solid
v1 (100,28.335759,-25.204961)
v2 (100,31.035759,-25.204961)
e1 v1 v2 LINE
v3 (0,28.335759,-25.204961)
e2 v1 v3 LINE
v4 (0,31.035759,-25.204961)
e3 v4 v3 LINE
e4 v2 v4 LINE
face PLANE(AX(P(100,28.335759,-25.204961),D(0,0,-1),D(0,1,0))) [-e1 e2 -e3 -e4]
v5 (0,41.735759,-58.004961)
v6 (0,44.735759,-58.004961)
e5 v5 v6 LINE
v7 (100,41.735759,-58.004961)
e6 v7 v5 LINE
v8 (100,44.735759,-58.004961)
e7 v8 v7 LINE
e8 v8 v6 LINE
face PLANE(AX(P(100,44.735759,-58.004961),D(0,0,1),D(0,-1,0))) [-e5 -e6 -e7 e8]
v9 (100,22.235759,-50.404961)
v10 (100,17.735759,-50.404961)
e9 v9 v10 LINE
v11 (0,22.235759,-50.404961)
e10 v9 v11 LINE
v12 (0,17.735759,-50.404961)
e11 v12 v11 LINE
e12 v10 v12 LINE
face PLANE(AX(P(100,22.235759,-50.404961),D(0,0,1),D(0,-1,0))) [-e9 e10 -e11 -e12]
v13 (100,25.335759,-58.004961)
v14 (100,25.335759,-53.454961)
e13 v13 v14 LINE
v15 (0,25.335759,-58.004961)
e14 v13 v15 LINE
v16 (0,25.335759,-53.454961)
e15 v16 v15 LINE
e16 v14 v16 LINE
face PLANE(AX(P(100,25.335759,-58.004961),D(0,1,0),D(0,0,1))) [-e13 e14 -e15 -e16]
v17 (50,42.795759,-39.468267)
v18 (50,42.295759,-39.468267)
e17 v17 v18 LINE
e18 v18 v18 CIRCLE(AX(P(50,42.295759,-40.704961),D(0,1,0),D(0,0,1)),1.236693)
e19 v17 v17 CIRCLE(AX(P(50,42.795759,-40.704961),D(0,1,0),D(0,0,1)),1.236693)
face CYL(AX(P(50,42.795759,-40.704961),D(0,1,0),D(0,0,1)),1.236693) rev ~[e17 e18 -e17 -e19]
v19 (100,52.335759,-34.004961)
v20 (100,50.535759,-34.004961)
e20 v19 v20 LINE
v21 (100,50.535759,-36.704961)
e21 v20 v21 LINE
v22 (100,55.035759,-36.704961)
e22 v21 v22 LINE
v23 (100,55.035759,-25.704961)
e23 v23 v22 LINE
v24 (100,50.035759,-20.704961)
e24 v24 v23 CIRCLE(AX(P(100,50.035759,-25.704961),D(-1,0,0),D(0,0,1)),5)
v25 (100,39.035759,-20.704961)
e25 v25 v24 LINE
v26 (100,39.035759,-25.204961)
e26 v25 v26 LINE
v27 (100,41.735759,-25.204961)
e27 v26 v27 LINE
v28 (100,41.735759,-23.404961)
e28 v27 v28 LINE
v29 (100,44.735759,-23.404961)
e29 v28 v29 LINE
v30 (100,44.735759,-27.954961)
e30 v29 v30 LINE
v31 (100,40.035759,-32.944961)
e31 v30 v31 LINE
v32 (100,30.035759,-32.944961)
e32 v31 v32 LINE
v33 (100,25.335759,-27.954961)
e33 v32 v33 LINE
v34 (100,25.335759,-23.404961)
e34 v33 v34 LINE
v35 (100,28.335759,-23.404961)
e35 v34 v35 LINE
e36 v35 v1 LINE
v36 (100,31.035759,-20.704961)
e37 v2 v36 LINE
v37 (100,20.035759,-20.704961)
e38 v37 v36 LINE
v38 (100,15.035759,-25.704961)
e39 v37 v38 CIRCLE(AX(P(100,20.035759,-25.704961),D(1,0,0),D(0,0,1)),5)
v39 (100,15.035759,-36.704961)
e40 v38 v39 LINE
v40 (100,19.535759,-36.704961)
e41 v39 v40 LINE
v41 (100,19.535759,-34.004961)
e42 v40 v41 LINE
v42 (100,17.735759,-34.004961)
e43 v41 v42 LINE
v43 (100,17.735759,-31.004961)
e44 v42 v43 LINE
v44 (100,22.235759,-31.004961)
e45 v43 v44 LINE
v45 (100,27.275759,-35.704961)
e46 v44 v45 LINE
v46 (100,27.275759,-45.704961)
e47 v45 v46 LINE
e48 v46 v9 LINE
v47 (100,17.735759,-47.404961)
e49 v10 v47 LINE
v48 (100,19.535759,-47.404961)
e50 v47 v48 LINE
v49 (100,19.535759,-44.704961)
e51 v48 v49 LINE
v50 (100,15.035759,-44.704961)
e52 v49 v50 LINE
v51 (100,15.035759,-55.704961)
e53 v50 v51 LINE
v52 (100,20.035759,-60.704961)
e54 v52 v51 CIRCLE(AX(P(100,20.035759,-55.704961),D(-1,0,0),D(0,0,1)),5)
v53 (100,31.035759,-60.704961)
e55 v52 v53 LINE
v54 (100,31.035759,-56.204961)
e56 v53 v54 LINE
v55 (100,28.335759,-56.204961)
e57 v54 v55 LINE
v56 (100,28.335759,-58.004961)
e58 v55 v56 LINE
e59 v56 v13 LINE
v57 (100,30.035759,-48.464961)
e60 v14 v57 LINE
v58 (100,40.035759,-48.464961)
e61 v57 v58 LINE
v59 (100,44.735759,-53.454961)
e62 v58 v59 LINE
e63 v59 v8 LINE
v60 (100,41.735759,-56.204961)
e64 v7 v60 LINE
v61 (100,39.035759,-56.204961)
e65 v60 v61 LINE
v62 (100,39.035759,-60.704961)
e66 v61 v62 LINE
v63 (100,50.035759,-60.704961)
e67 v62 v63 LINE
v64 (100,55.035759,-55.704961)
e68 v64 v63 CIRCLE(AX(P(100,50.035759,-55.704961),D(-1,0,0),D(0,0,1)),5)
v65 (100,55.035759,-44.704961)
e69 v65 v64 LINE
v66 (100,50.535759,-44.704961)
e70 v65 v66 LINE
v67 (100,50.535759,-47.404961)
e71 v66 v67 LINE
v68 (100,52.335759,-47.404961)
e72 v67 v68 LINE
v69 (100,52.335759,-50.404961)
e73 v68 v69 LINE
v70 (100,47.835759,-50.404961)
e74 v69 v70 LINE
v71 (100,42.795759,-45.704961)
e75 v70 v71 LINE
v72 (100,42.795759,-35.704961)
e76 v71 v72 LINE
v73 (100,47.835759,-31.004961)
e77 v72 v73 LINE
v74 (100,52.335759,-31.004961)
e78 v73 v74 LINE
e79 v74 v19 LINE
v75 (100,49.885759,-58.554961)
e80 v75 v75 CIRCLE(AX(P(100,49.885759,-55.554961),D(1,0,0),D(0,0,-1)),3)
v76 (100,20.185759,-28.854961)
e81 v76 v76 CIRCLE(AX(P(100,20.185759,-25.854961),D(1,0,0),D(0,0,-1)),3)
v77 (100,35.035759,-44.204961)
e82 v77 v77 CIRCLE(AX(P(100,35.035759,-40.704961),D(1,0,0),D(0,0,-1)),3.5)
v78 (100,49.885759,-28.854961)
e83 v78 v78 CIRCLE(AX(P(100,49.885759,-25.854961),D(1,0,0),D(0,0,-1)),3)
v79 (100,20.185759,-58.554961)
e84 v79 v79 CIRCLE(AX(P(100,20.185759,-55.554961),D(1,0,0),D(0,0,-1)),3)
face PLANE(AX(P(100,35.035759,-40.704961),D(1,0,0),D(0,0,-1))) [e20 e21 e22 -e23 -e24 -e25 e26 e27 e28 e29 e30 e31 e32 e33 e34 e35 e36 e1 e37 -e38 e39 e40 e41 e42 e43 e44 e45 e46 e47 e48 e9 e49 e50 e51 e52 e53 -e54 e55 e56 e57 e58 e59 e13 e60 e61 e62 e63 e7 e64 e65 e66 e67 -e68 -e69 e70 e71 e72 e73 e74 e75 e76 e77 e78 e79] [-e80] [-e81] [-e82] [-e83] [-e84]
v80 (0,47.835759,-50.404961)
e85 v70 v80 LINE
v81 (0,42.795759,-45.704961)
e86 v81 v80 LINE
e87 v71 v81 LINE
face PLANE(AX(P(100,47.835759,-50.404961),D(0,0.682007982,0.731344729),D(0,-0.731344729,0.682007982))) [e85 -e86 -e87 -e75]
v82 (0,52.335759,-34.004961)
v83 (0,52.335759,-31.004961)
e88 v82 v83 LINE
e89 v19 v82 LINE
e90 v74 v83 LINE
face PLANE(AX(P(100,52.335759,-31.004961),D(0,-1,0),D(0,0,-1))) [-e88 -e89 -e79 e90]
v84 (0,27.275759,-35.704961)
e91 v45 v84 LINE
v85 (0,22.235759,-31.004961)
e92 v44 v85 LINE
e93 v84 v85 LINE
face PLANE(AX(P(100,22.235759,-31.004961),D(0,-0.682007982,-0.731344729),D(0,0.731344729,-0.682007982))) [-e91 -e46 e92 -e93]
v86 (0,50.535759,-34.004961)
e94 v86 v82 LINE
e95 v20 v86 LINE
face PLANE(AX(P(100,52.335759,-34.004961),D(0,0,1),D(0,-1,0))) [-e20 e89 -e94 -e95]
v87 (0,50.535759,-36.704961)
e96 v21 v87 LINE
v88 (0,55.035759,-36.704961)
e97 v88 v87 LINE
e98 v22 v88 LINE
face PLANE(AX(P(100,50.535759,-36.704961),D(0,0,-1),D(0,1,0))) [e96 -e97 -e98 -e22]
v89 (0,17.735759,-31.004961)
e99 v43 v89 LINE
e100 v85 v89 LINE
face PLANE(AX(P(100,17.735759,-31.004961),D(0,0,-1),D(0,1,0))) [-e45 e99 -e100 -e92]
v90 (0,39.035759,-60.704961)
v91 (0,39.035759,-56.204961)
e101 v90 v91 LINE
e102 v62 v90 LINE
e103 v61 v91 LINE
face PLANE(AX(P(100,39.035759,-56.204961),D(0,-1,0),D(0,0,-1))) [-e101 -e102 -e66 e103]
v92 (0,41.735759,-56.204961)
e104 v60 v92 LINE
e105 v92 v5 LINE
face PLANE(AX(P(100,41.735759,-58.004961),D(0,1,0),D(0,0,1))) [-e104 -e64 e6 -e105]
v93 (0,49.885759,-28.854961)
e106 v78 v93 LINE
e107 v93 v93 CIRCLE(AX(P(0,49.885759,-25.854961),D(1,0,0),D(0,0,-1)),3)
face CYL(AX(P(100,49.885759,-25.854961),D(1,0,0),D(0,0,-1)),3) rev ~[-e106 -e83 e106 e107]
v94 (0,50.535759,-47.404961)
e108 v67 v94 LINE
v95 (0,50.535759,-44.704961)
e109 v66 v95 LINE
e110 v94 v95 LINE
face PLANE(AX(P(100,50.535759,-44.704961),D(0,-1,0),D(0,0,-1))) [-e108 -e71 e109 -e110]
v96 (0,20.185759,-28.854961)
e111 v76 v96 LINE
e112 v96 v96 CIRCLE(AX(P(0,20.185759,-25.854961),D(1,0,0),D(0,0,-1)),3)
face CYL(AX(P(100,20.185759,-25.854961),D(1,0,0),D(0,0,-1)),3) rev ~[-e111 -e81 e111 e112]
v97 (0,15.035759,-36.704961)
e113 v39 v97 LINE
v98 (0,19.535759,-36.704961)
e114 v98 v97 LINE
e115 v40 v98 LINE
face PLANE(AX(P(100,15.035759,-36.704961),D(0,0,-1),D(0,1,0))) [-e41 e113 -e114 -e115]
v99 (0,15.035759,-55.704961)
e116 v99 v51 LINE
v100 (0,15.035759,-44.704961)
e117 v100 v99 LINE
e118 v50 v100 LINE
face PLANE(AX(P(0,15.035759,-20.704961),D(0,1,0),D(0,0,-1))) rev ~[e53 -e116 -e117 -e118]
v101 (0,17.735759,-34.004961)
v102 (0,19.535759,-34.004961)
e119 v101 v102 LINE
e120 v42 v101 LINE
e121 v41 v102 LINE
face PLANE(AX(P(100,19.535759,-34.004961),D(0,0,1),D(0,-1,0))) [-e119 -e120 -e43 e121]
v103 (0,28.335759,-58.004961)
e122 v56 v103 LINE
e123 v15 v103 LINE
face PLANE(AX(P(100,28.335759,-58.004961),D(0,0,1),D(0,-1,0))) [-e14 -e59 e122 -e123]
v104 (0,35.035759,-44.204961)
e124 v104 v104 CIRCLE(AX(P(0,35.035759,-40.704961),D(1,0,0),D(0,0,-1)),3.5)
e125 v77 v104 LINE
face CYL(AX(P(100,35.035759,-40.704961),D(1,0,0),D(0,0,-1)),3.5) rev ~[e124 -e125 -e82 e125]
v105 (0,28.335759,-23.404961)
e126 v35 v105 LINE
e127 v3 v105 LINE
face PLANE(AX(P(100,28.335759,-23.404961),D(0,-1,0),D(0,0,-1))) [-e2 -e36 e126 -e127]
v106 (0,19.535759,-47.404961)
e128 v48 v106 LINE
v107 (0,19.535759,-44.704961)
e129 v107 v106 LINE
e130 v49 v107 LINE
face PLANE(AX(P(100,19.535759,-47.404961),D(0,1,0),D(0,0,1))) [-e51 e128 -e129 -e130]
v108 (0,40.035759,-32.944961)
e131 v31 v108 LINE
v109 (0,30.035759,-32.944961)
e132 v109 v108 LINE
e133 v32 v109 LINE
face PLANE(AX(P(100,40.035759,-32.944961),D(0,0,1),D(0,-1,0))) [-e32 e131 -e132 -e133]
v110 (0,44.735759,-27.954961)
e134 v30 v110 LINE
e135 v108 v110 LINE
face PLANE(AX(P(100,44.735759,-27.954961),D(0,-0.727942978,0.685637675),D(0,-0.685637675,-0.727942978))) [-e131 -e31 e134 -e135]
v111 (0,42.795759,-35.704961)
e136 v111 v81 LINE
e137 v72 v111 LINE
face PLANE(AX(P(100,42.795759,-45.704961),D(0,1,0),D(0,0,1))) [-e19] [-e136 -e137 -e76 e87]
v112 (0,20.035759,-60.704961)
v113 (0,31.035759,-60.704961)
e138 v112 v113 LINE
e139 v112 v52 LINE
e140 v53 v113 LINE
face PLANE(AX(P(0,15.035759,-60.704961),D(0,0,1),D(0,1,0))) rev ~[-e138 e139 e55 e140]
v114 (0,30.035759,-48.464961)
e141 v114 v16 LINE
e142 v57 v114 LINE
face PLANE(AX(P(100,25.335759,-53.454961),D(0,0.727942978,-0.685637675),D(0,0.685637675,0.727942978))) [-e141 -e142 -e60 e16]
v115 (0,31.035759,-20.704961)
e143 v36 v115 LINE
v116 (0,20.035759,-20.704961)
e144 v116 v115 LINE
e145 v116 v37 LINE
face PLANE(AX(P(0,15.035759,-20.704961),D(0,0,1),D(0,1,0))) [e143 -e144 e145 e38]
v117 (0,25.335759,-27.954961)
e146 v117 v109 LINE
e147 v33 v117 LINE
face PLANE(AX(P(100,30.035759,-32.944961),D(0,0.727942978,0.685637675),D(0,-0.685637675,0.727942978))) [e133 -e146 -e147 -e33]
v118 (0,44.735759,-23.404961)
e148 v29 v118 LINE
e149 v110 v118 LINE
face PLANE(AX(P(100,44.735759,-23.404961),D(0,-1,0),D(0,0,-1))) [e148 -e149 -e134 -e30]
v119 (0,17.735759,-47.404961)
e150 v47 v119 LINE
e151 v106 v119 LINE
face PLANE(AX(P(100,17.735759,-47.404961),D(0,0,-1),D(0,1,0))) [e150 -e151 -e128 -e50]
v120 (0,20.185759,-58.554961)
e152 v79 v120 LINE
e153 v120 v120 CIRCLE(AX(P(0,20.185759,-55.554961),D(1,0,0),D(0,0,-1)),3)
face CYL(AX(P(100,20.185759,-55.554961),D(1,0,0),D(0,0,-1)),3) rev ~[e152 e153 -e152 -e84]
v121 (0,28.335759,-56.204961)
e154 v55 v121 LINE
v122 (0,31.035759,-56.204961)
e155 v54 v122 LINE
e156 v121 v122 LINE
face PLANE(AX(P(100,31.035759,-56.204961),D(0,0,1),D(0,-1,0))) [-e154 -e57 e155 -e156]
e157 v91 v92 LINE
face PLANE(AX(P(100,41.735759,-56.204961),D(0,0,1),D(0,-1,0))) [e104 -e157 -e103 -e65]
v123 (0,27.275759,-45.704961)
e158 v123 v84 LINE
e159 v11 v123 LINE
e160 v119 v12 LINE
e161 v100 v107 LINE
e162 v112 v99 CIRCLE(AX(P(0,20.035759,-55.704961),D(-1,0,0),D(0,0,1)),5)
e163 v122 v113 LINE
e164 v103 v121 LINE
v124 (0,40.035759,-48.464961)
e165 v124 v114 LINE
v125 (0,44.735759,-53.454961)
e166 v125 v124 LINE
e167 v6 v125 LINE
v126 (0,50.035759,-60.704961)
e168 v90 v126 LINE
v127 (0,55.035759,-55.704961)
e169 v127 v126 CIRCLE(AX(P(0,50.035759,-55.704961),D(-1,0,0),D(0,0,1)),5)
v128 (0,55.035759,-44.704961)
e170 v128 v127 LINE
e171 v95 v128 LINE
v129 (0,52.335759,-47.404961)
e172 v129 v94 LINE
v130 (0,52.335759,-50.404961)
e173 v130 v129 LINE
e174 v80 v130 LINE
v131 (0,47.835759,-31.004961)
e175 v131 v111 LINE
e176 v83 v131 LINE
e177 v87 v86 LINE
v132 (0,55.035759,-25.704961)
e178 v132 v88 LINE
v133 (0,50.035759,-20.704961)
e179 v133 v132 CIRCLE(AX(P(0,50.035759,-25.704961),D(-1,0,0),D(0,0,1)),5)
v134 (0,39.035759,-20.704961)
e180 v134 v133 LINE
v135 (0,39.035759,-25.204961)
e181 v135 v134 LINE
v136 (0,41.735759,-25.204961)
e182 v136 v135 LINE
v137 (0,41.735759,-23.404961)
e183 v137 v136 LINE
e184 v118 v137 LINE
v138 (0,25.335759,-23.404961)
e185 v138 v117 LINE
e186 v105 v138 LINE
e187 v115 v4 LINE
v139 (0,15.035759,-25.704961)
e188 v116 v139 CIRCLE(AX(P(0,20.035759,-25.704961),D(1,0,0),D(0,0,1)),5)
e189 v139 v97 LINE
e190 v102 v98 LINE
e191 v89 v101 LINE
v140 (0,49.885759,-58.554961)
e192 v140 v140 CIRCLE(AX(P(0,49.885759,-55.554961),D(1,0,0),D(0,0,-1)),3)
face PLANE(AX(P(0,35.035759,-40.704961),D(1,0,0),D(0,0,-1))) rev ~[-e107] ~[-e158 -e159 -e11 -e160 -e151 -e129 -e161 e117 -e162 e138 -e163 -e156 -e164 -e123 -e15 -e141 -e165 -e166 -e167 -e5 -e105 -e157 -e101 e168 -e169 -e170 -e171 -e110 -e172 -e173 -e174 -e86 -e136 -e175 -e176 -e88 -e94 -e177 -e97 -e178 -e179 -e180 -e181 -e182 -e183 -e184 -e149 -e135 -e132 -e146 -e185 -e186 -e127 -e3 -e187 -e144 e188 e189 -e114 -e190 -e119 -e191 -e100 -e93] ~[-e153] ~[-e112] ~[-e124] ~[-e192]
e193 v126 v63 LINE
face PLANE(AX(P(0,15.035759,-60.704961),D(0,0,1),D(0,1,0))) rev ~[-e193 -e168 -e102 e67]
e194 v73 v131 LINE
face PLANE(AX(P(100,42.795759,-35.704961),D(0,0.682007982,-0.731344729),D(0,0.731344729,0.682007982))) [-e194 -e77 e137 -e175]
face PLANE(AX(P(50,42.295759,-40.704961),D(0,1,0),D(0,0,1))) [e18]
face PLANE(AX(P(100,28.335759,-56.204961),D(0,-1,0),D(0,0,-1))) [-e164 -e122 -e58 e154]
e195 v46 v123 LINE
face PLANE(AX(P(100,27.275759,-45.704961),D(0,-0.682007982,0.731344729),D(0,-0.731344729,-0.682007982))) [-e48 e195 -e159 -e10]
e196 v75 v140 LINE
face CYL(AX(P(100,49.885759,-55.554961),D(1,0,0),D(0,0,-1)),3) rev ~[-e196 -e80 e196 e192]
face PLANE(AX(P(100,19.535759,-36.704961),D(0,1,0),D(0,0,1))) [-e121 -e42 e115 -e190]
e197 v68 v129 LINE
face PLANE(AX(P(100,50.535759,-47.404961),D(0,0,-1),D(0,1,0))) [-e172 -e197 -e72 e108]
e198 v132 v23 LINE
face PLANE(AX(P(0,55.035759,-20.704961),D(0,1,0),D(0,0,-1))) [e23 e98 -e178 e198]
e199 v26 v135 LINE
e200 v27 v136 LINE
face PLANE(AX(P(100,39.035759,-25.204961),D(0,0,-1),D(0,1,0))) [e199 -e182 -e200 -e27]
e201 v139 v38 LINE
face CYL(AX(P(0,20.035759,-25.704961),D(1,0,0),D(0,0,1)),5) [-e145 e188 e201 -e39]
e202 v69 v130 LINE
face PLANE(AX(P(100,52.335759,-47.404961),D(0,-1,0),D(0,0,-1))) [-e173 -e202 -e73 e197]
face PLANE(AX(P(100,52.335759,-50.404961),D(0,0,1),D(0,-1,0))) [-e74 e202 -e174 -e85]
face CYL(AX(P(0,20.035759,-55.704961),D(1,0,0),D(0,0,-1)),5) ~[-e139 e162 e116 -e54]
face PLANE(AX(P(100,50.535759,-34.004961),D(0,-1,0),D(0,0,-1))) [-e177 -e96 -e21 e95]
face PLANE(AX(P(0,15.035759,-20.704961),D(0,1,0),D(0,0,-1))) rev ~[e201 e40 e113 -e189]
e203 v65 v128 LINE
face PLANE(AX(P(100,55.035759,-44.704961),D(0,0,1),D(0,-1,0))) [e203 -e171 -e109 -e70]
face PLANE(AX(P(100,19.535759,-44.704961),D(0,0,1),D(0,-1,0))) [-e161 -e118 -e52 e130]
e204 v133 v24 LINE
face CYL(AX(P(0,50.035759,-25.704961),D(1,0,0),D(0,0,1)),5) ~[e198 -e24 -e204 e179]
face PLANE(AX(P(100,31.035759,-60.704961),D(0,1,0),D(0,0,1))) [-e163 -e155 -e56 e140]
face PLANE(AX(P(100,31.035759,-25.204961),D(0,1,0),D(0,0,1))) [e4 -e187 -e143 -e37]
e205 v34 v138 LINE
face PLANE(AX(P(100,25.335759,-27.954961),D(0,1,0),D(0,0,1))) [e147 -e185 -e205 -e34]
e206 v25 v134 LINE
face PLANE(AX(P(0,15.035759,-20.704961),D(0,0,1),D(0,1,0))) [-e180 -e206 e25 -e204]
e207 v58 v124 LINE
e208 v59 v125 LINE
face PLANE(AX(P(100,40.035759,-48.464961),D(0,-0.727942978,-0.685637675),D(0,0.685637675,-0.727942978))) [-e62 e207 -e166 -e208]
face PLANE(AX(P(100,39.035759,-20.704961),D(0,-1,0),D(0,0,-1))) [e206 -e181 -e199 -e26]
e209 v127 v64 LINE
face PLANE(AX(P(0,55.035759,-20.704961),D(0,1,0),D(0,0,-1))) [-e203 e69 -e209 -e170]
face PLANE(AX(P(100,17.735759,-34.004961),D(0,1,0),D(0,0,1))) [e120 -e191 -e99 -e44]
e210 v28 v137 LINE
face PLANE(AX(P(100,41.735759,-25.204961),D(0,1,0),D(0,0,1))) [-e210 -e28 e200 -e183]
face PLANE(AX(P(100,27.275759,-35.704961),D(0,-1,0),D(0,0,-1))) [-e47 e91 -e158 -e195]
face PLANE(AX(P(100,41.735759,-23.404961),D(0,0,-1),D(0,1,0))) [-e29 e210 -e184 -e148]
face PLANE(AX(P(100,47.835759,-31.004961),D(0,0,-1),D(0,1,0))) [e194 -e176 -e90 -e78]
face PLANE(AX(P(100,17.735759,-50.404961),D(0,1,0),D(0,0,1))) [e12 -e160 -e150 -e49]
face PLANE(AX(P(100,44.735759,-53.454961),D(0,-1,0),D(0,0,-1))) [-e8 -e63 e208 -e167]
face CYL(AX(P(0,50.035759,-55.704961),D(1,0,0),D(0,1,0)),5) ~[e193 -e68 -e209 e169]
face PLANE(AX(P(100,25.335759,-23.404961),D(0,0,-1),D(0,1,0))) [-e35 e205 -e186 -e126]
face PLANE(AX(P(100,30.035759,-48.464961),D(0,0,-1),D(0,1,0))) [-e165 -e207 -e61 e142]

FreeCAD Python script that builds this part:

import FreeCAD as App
import Part
import Sketcher

V = App.Vector
Q = App.Units.Quantity


def edges_at(feature, points):
    """Names of the edges that pass closest to the given points."""
    edges = feature.Shape.Edges
    near = lambda p: min(range(len(edges)), key=lambda i: edges[i].distToShape(Part.Vertex(*p))[0])
    return sorted({f"Edge{near(p) + 1}" for p in points})

doc = App.newDocument("Part")
params = doc.addObject("Spreadsheet::Sheet", "Params")
for row, (alias, value) in enumerate([
    ("sketch1_width", "40 mm"),
    ("pad1_length", "100 mm"),
    ("sketch2_diameter", "7 mm"),
    ("sketch3_diameter", "6 mm"),
    ("sketch4_diameter", "6 mm"),
    ("sketch5_diameter", "6 mm"),
    ("sketch6_diameter", "6 mm"),
    ("sketch7_height", "8 mm"),
    ("sketch7_height2", "3 mm"),
    ("sketch7_height3", "10 mm"),
    ("sketch7_width", "4.5 mm"),
    ("sketch7_width2", "1.8 mm"),
    ("sketch8_height", "8 mm"),
    ("sketch8_height2", "3 mm"),
    ("sketch8_height3", "10 mm"),
    ("sketch8_width", "4.5 mm"),
    ("sketch8_width2", "1.8 mm"),
    ("sketch9_width", "8 mm"),
    ("sketch9_width2", "3 mm"),
    ("sketch9_width3", "10 mm"),
    ("sketch9_width4", "2.7 mm"),
    ("sketch9_height", "4.5 mm"),
    ("sketch10_width", "8 mm"),
    ("sketch10_width2", "3 mm"),
    ("sketch10_width3", "10 mm"),
    ("sketch10_width4", "2.7 mm"),
    ("sketch10_height", "4.5 mm"),
    ("fillet_radius", "5 mm"),
    ("pocket10_length", "0.5 mm"),
], start=1):
    params.set(f"A{row}", alias)
    params.set(f"B{row}", "=" + value)
    params.setAlias(f"B{row}", alias)

body = doc.addObject("PartDesign::Body", "Body")

sketch1 = doc.addObject("Sketcher::SketchObject", "Sketch")
body.addObject(sketch1)
sketch1.AttachmentSupport = (doc.YZ_Plane, [""])
sketch1.MapMode = "FlatFace"
sketch1.addGeometry(Part.LineSegment(V(55.035759, -20.704961, 0), V(15.035759, -20.704961, 0)), False)
sketch1.addGeometry(Part.LineSegment(V(15.035759, -20.704961, 0), V(15.035759, -60.704961, 0)), False)
sketch1.addGeometry(Part.LineSegment(V(15.035759, -60.704961, 0), V(55.035759, -60.704961, 0)), False)
sketch1.addGeometry(Part.LineSegment(V(55.035759, -60.704961, 0), V(55.035759, -20.704961, 0)), False)
sketch1.addConstraint(Sketcher.Constraint("Coincident", 0, 2, 1, 1))
sketch1.addConstraint(Sketcher.Constraint("Coincident", 1, 2, 2, 1))
sketch1.addConstraint(Sketcher.Constraint("Coincident", 2, 2, 3, 1))
sketch1.addConstraint(Sketcher.Constraint("Coincident", 3, 2, 0, 1))
sketch1.addConstraint(Sketcher.Constraint("Horizontal", 0))
sketch1.addConstraint(Sketcher.Constraint("Vertical", 1))
sketch1.addConstraint(Sketcher.Constraint("Horizontal", 2))
sketch1.addConstraint(Sketcher.Constraint("Vertical", 3))
sketch1.addConstraint(Sketcher.Constraint("Equal", 2, 1))
sketch1.addConstraint(Sketcher.Constraint("DistanceX", 0, 2, 0, 1, Q("40 mm")))
sketch1.addConstraint(Sketcher.Constraint("DistanceX", -1, 1, 0, 2, Q("15.035759 mm")))
sketch1.addConstraint(Sketcher.Constraint("DistanceY", 0, 2, -1, 1, Q("20.704961 mm")))
sketch1.setExpression("Constraints[9]", "Params.sketch1_width")
pad1 = doc.addObject("PartDesign::Pad", "Pad")
body.addObject(pad1)
pad1.Profile = sketch1
pad1.setExpression("Length", "Params.pad1_length")

sketch2 = doc.addObject("Sketcher::SketchObject", "Sketch001")
body.addObject(sketch2)
sketch2.AttachmentSupport = (doc.YZ_Plane, [""])
sketch2.MapMode = "FlatFace"
sketch2.AttachmentOffset = App.Placement(V(0, 0, 100), App.Rotation())
sketch2.addGeometry(Part.Circle(V(35.035759, -40.704961, 0), V(0, 0, 1), 3.5), False)
sketch2.addConstraint(Sketcher.Constraint("Diameter", 0, Q("7 mm")))
sketch2.addConstraint(Sketcher.Constraint("DistanceX", -1, 1, 0, 3, Q("35.035759 mm")))
sketch2.addConstraint(Sketcher.Constraint("DistanceY", 0, 3, -1, 1, Q("40.704961 mm")))
sketch2.setExpression("Constraints[0]", "Params.sketch2_diameter")
pocket1 = doc.addObject("PartDesign::Pocket", "Pocket")
body.addObject(pocket1)
pocket1.Profile = sketch2
pocket1.Type = "UpToFirst"

sketch3 = doc.addObject("Sketcher::SketchObject", "Sketch002")
body.addObject(sketch3)
sketch3.AttachmentSupport = (doc.YZ_Plane, [""])
sketch3.MapMode = "FlatFace"
sketch3.AttachmentOffset = App.Placement(V(0, 0, 100), App.Rotation())
sketch3.addGeometry(Part.Circle(V(49.885759, -25.854961, 0), V(0, 0, 1), 3), False)
sketch3.addConstraint(Sketcher.Constraint("Diameter", 0, Q("6 mm")))
sketch3.addConstraint(Sketcher.Constraint("DistanceX", -1, 1, 0, 3, Q("49.885759 mm")))
sketch3.addConstraint(Sketcher.Constraint("DistanceY", 0, 3, -1, 1, Q("25.854961 mm")))
sketch3.setExpression("Constraints[0]", "Params.sketch3_diameter")
pocket2 = doc.addObject("PartDesign::Pocket", "Pocket001")
body.addObject(pocket2)
pocket2.Profile = sketch3
pocket2.Type = "UpToFirst"

sketch4 = doc.addObject("Sketcher::SketchObject", "Sketch003")
body.addObject(sketch4)
sketch4.AttachmentSupport = (doc.YZ_Plane, [""])
sketch4.MapMode = "FlatFace"
sketch4.AttachmentOffset = App.Placement(V(0, 0, 100), App.Rotation())
sketch4.addGeometry(Part.Circle(V(20.185759, -25.854961, 0), V(0, 0, 1), 3), False)
sketch4.addConstraint(Sketcher.Constraint("Diameter", 0, Q("6 mm")))
sketch4.addConstraint(Sketcher.Constraint("DistanceX", -1, 1, 0, 3, Q("20.185759 mm")))
sketch4.addConstraint(Sketcher.Constraint("DistanceY", 0, 3, -1, 1, Q("25.854961 mm")))
sketch4.setExpression("Constraints[0]", "Params.sketch4_diameter")
pocket3 = doc.addObject("PartDesign::Pocket", "Pocket002")
body.addObject(pocket3)
pocket3.Profile = sketch4
pocket3.Type = "UpToFirst"

sketch5 = doc.addObject("Sketcher::SketchObject", "Sketch004")
body.addObject(sketch5)
sketch5.AttachmentSupport = (doc.YZ_Plane, [""])
sketch5.MapMode = "FlatFace"
sketch5.AttachmentOffset = App.Placement(V(0, 0, 100), App.Rotation())
sketch5.addGeometry(Part.Circle(V(49.885759, -55.554961, 0), V(0, 0, 1), 3), False)
sketch5.addConstraint(Sketcher.Constraint("Diameter", 0, Q("6 mm")))
sketch5.addConstraint(Sketcher.Constraint("DistanceX", -1, 1, 0, 3, Q("49.885759 mm")))
sketch5.addConstraint(Sketcher.Constraint("DistanceY", 0, 3, -1, 1, Q("55.554961 mm")))
sketch5.setExpression("Constraints[0]", "Params.sketch5_diameter")
pocket4 = doc.addObject("PartDesign::Pocket", "Pocket003")
body.addObject(pocket4)
pocket4.Profile = sketch5
pocket4.Type = "UpToFirst"

sketch6 = doc.addObject("Sketcher::SketchObject", "Sketch005")
body.addObject(sketch6)
sketch6.AttachmentSupport = (doc.YZ_Plane, [""])
sketch6.MapMode = "FlatFace"
sketch6.AttachmentOffset = App.Placement(V(0, 0, 100), App.Rotation())
sketch6.addGeometry(Part.Circle(V(20.185759, -55.554961, 0), V(0, 0, 1), 3), False)
sketch6.addConstraint(Sketcher.Constraint("Diameter", 0, Q("6 mm")))
sketch6.addConstraint(Sketcher.Constraint("DistanceX", -1, 1, 0, 3, Q("20.185759 mm")))
sketch6.addConstraint(Sketcher.Constraint("DistanceY", 0, 3, -1, 1, Q("55.554961 mm")))
sketch6.setExpression("Constraints[0]", "Params.sketch6_diameter")
pocket5 = doc.addObject("PartDesign::Pocket", "Pocket004")
body.addObject(pocket5)
pocket5.Profile = sketch6
pocket5.Type = "UpToFirst"

sketch7 = doc.addObject("Sketcher::SketchObject", "Sketch006")
body.addObject(sketch7)
sketch7.AttachmentSupport = (doc.YZ_Plane, [""])
sketch7.MapMode = "FlatFace"
sketch7.AttachmentOffset = App.Placement(V(0, 0, 100), App.Rotation())
sketch7.addGeometry(Part.LineSegment(V(19.535759, -36.704961, 0), V(15.035759, -36.704961, 0)), False)
sketch7.addGeometry(Part.LineSegment(V(15.035759, -36.704961, 0), V(15.035759, -44.704961, 0)), False)
sketch7.addGeometry(Part.LineSegment(V(15.035759, -44.704961, 0), V(19.535759, -44.704961, 0)), False)
sketch7.addGeometry(Part.LineSegment(V(19.535759, -44.704961, 0), V(19.535759, -47.404961, 0)), False)
sketch7.addGeometry(Part.LineSegment(V(19.535759, -47.404961, 0), V(17.735759, -47.404961, 0)), False)
sketch7.addGeometry(Part.LineSegment(V(17.735759, -47.404961, 0), V(17.735759, -50.404961, 0)), False)
sketch7.addGeometry(Part.LineSegment(V(17.735759, -50.404961, 0), V(22.235759, -50.404961, 0)), False)
sketch7.addGeometry(Part.LineSegment(V(22.235759, -50.404961, 0), V(27.275759, -45.704961, 0)), False)
sketch7.addGeometry(Part.LineSegment(V(27.275759, -45.704961, 0), V(27.275759, -35.704961, 0)), False)
sketch7.addGeometry(Part.LineSegment(V(27.275759, -35.704961, 0), V(22.235759, -31.004961, 0)), False)
sketch7.addGeometry(Part.LineSegment(V(22.235759, -31.004961, 0), V(17.735759, -31.004961, 0)), False)
sketch7.addGeometry(Part.LineSegment(V(17.735759, -31.004961, 0), V(17.735759, -34.004961, 0)), False)
sketch7.addGeometry(Part.LineSegment(V(17.735759, -34.004961, 0), V(19.535759, -34.004961, 0)), False)
sketch7.addGeometry(Part.LineSegment(V(19.535759, -34.004961, 0), V(19.535759, -36.704961, 0)), False)
sketch7.addConstraint(Sketcher.Constraint("Coincident", 0, 2, 1, 1))
sketch7.addConstraint(Sketcher.Constraint("Coincident", 1, 2, 2, 1))
sketch7.addConstraint(Sketcher.Constraint("Coincident", 2, 2, 3, 1))
sketch7.addConstraint(Sketcher.Constraint("Coincident", 3, 2, 4, 1))
sketch7.addConstraint(Sketcher.Constraint("Coincident", 4, 2, 5, 1))
sketch7.addConstraint(Sketcher.Constraint("Coincident", 5, 2, 6, 1))
sketch7.addConstraint(Sketcher.Constraint("Coincident", 6, 2, 7, 1))
sketch7.addConstraint(Sketcher.Constraint("Coincident", 7, 2, 8, 1))
sketch7.addConstraint(Sketcher.Constraint("Coincident", 8, 2, 9, 1))
sketch7.addConstraint(Sketcher.Constraint("Coincident", 9, 2, 10, 1))
sketch7.addConstraint(Sketcher.Constraint("Coincident", 10, 2, 11, 1))
sketch7.addConstraint(Sketcher.Constraint("Coincident", 11, 2, 12, 1))
sketch7.addConstraint(Sketcher.Constraint("Coincident", 12, 2, 13, 1))
sketch7.addConstraint(Sketcher.Constraint("Coincident", 13, 2, 0, 1))
sketch7.addConstraint(Sketcher.Constraint("Horizontal", 0))
sketch7.addConstraint(Sketcher.Constraint("Vertical", 1))
sketch7.addConstraint(Sketcher.Constraint("Horizontal", 2))
sketch7.addConstraint(Sketcher.Constraint("Vertical", 3))
sketch7.addConstraint(Sketcher.Constraint("Horizontal", 4))
sketch7.addConstraint(Sketcher.Constraint("Vertical", 5))
sketch7.addConstraint(Sketcher.Constraint("Horizontal", 6))
sketch7.addConstraint(Sketcher.Constraint("Vertical", 8))
sketch7.addConstraint(Sketcher.Constraint("Horizontal", 10))
sketch7.addConstraint(Sketcher.Constraint("Vertical", 11))
sketch7.addConstraint(Sketcher.Constraint("Horizontal", 12))
sketch7.addConstraint(Sketcher.Constraint("Vertical", 13))
sketch7.addConstraint(Sketcher.Constraint("Vertical", 6, 2, 9, 2))
sketch7.addConstraint(Sketcher.Constraint("Vertical", 5, 2, 10, 2))
sketch7.addConstraint(Sketcher.Constraint("Vertical", 3, 2, 12, 2))
sketch7.addConstraint(Sketcher.Constraint("Equal", 2, 6))
sketch7.addConstraint(Sketcher.Constraint("Equal", 5, 11))
sketch7.addConstraint(Sketcher.Constraint("Equal", 3, 13))
sketch7.addConstraint(Sketcher.Constraint("Equal", 7, 9))
sketch7.addConstraint(Sketcher.Constraint("DistanceY", 1, 2, 1, 1, Q("8 mm")))
sketch7.addConstraint(Sketcher.Constraint("DistanceY", 5, 2, 5, 1, Q("3 mm")))
sketch7.addConstraint(Sketcher.Constraint("DistanceY", 8, 1, 8, 2, Q("10 mm")))
sketch7.addConstraint(Sketcher.Constraint("DistanceX", 0, 2, 0, 1, Q("4.5 mm")))
sketch7.addConstraint(Sketcher.Constraint("DistanceX", 4, 2, 4, 1, Q("1.8 mm")))
sketch7.addConstraint(Sketcher.Constraint("DistanceY", 3, 2, 3, 1, Q("2.7 mm")))
sketch7.addConstraint(Sketcher.Constraint("DistanceX", 6, 2, 7, 2, Q("5.04 mm")))
sketch7.addConstraint(Sketcher.Constraint("DistanceX", -1, 1, 0, 2, Q("15.035759 mm")))
sketch7.addConstraint(Sketcher.Constraint("DistanceY", 0, 2, -1, 1, Q("36.704961 mm")))
sketch7.setExpression("Constraints[33]", "Params.sketch7_height")
sketch7.setExpression("Constraints[34]", "Params.sketch7_height2")
sketch7.setExpression("Constraints[35]", "Params.sketch7_height3")
sketch7.setExpression("Constraints[36]", "Params.sketch7_width")
sketch7.setExpression("Constraints[37]", "Params.sketch7_width2")
pocket6 = doc.addObject("PartDesign::Pocket", "Pocket005")
body.addObject(pocket6)
pocket6.Profile = sketch7
pocket6.Type = "UpToFirst"

sketch8 = doc.addObject("Sketcher::SketchObject", "Sketch007")
body.addObject(sketch8)
sketch8.AttachmentSupport = (doc.YZ_Plane, [""])
sketch8.MapMode = "FlatFace"
sketch8.AttachmentOffset = App.Placement(V(0, 0, 100), App.Rotation())
sketch8.addGeometry(Part.LineSegment(V(50.535759, -44.704961, 0), V(55.035759, -44.704961, 0)), False)
sketch8.addGeometry(Part.LineSegment(V(55.035759, -44.704961, 0), V(55.035759, -36.704961, 0)), False)
sketch8.addGeometry(Part.LineSegment(V(55.035759, -36.704961, 0), V(50.535759, -36.704961, 0)), False)
sketch8.addGeometry(Part.LineSegment(V(50.535759, -36.704961, 0), V(50.535759, -34.004961, 0)), False)
sketch8.addGeometry(Part.LineSegment(V(50.535759, -34.004961, 0), V(52.335759, -34.004961, 0)), False)
sketch8.addGeometry(Part.LineSegment(V(52.335759, -34.004961, 0), V(52.335759, -31.004961, 0)), False)
sketch8.addGeometry(Part.LineSegment(V(52.335759, -31.004961, 0), V(47.835759, -31.004961, 0)), False)
sketch8.addGeometry(Part.LineSegment(V(47.835759, -31.004961, 0), V(42.795759, -35.704961, 0)), False)
sketch8.addGeometry(Part.LineSegment(V(42.795759, -35.704961, 0), V(42.795759, -45.704961, 0)), False)
sketch8.addGeometry(Part.LineSegment(V(42.795759, -45.704961, 0), V(47.835759, -50.404961, 0)), False)
sketch8.addGeometry(Part.LineSegment(V(47.835759, -50.404961, 0), V(52.335759, -50.404961, 0)), False)
sketch8.addGeometry(Part.LineSegment(V(52.335759, -50.404961, 0), V(52.335759, -47.404961, 0)), False)
sketch8.addGeometry(Part.LineSegment(V(52.335759, -47.404961, 0), V(50.535759, -47.404961, 0)), False)
sketch8.addGeometry(Part.LineSegment(V(50.535759, -47.404961, 0), V(50.535759, -44.704961, 0)), False)
sketch8.addConstraint(Sketcher.Constraint("Coincident", 0, 2, 1, 1))
sketch8.addConstraint(Sketcher.Constraint("Coincident", 1, 2, 2, 1))
sketch8.addConstraint(Sketcher.Constraint("Coincident", 2, 2, 3, 1))
sketch8.addConstraint(Sketcher.Constraint("Coincident", 3, 2, 4, 1))
sketch8.addConstraint(Sketcher.Constraint("Coincident", 4, 2, 5, 1))
sketch8.addConstraint(Sketcher.Constraint("Coincident", 5, 2, 6, 1))
sketch8.addConstraint(Sketcher.Constraint("Coincident", 6, 2, 7, 1))
sketch8.addConstraint(Sketcher.Constraint("Coincident", 7, 2, 8, 1))
sketch8.addConstraint(Sketcher.Constraint("Coincident", 8, 2, 9, 1))
sketch8.addConstraint(Sketcher.Constraint("Coincident", 9, 2, 10, 1))
sketch8.addConstraint(Sketcher.Constraint("Coincident", 10, 2, 11, 1))
sketch8.addConstraint(Sketcher.Constraint("Coincident", 11, 2, 12, 1))
sketch8.addConstraint(Sketcher.Constraint("Coincident", 12, 2, 13, 1))
sketch8.addConstraint(Sketcher.Constraint("Coincident", 13, 2, 0, 1))
sketch8.addConstraint(Sketcher.Constraint("Horizontal", 0))
sketch8.addConstraint(Sketcher.Constraint("Vertical", 1))
sketch8.addConstraint(Sketcher.Constraint("Horizontal", 2))
sketch8.addConstraint(Sketcher.Constraint("Vertical", 3))
sketch8.addConstraint(Sketcher.Constraint("Horizontal", 4))
sketch8.addConstraint(Sketcher.Constraint("Vertical", 5))
sketch8.addConstraint(Sketcher.Constraint("Horizontal", 6))
sketch8.addConstraint(Sketcher.Constraint("Vertical", 8))
sketch8.addConstraint(Sketcher.Constraint("Horizontal", 10))
sketch8.addConstraint(Sketcher.Constraint("Vertical", 11))
sketch8.addConstraint(Sketcher.Constraint("Horizontal", 12))
sketch8.addConstraint(Sketcher.Constraint("Vertical", 13))
sketch8.addConstraint(Sketcher.Constraint("Vertical", 6, 2, 9, 2))
sketch8.addConstraint(Sketcher.Constraint("Vertical", 5, 2, 10, 2))
sketch8.addConstraint(Sketcher.Constraint("Vertical", 3, 2, 12, 2))
sketch8.addConstraint(Sketcher.Constraint("Equal", 2, 6))
sketch8.addConstraint(Sketcher.Constraint("Equal", 5, 11))
sketch8.addConstraint(Sketcher.Constraint("Equal", 3, 13))
sketch8.addConstraint(Sketcher.Constraint("Equal", 7, 9))
sketch8.addConstraint(Sketcher.Constraint("DistanceY", 1, 1, 1, 2, Q("8 mm")))
sketch8.addConstraint(Sketcher.Constraint("DistanceY", 5, 1, 5, 2, Q("3 mm")))
sketch8.addConstraint(Sketcher.Constraint("DistanceY", 8, 2, 8, 1, Q("10 mm")))
sketch8.addConstraint(Sketcher.Constraint("DistanceX", 0, 1, 0, 2, Q("4.5 mm")))
sketch8.addConstraint(Sketcher.Constraint("DistanceX", 4, 1, 4, 2, Q("1.8 mm")))
sketch8.addConstraint(Sketcher.Constraint("DistanceY", 3, 1, 3, 2, Q("2.7 mm")))
sketch8.addConstraint(Sketcher.Constraint("DistanceX", 7, 2, 6, 2, Q("5.04 mm")))
sketch8.addConstraint(Sketcher.Constraint("DistanceX", -1, 1, 0, 2, Q("55.035759 mm")))
sketch8.addConstraint(Sketcher.Constraint("DistanceY", 0, 2, -1, 1, Q("44.704961 mm")))
sketch8.setExpression("Constraints[33]", "Params.sketch8_height")
sketch8.setExpression("Constraints[34]", "Params.sketch8_height2")
sketch8.setExpression("Constraints[35]", "Params.sketch8_height3")
sketch8.setExpression("Constraints[36]", "Params.sketch8_width")
sketch8.setExpression("Constraints[37]", "Params.sketch8_width2")
pocket7 = doc.addObject("PartDesign::Pocket", "Pocket006")
body.addObject(pocket7)
pocket7.Profile = sketch8
pocket7.Type = "UpToFirst"

sketch9 = doc.addObject("Sketcher::SketchObject", "Sketch008")
body.addObject(sketch9)
sketch9.AttachmentSupport = (doc.YZ_Plane, [""])
sketch9.MapMode = "FlatFace"
sketch9.AttachmentOffset = App.Placement(V(0, 0, 100), App.Rotation())
sketch9.addGeometry(Part.LineSegment(V(39.035759, -20.704961, 0), V(31.035759, -20.704961, 0)), False)
sketch9.addGeometry(Part.LineSegment(V(31.035759, -20.704961, 0), V(31.035759, -25.204961, 0)), False)
sketch9.addGeometry(Part.LineSegment(V(31.035759, -25.204961, 0), V(28.335759, -25.204961, 0)), False)
sketch9.addGeometry(Part.LineSegment(V(28.335759, -25.204961, 0), V(28.335759, -23.404961, 0)), False)
sketch9.addGeometry(Part.LineSegment(V(28.335759, -23.404961, 0), V(25.335759, -23.404961, 0)), False)
sketch9.addGeometry(Part.LineSegment(V(25.335759, -23.404961, 0), V(25.335759, -27.954961, 0)), False)
sketch9.addGeometry(Part.LineSegment(V(25.335759, -27.954961, 0), V(30.035759, -32.944961, 0)), False)
sketch9.addGeometry(Part.LineSegment(V(30.035759, -32.944961, 0), V(40.035759, -32.944961, 0)), False)
sketch9.addGeometry(Part.LineSegment(V(40.035759, -32.944961, 0), V(44.735759, -27.954961, 0)), False)
sketch9.addGeometry(Part.LineSegment(V(44.735759, -27.954961, 0), V(44.735759, -23.404961, 0)), False)
sketch9.addGeometry(Part.LineSegment(V(44.735759, -23.404961, 0), V(41.735759, -23.404961, 0)), False)
sketch9.addGeometry(Part.LineSegment(V(41.735759, -23.404961, 0), V(41.735759, -25.204961, 0)), False)
sketch9.addGeometry(Part.LineSegment(V(41.735759, -25.204961, 0), V(39.035759, -25.204961, 0)), False)
sketch9.addGeometry(Part.LineSegment(V(39.035759, -25.204961, 0), V(39.035759, -20.704961, 0)), False)
sketch9.addConstraint(Sketcher.Constraint("Coincident", 0, 2, 1, 1))
sketch9.addConstraint(Sketcher.Constraint("Coincident", 1, 2, 2, 1))
sketch9.addConstraint(Sketcher.Constraint("Coincident", 2, 2, 3, 1))
sketch9.addConstraint(Sketcher.Constraint("Coincident", 3, 2, 4, 1))
sketch9.addConstraint(Sketcher.Constraint("Coincident", 4, 2, 5, 1))
sketch9.addConstraint(Sketcher.Constraint("Coincident", 5, 2, 6, 1))
sketch9.addConstraint(Sketcher.Constraint("Coincident", 6, 2, 7, 1))
sketch9.addConstraint(Sketcher.Constraint("Coincident", 7, 2, 8, 1))
sketch9.addConstraint(Sketcher.Constraint("Coincident", 8, 2, 9, 1))
sketch9.addConstraint(Sketcher.Constraint("Coincident", 9, 2, 10, 1))
sketch9.addConstraint(Sketcher.Constraint("Coincident", 10, 2, 11, 1))
sketch9.addConstraint(Sketcher.Constraint("Coincident", 11, 2, 12, 1))
sketch9.addConstraint(Sketcher.Constraint("Coincident", 12, 2, 13, 1))
sketch9.addConstraint(Sketcher.Constraint("Coincident", 13, 2, 0, 1))
sketch9.addConstraint(Sketcher.Constraint("Horizontal", 0))
sketch9.addConstraint(Sketcher.Constraint("Vertical", 1))
sketch9.addConstraint(Sketcher.Constraint("Horizontal", 2))
sketch9.addConstraint(Sketcher.Constraint("Vertical", 3))
sketch9.addConstraint(Sketcher.Constraint("Horizontal", 4))
sketch9.addConstraint(Sketcher.Constraint("Vertical", 5))
sketch9.addConstraint(Sketcher.Constraint("Horizontal", 7))
sketch9.addConstraint(Sketcher.Constraint("Vertical", 9))
sketch9.addConstraint(Sketcher.Constraint("Horizontal", 10))
sketch9.addConstraint(Sketcher.Constraint("Vertical", 11))
sketch9.addConstraint(Sketcher.Constraint("Horizontal", 12))
sketch9.addConstraint(Sketcher.Constraint("Vertical", 13))
sketch9.addConstraint(Sketcher.Constraint("Horizontal", 5, 2, 8, 2))
sketch9.addConstraint(Sketcher.Constraint("Horizontal", 4, 2, 9, 2))
sketch9.addConstraint(Sketcher.Constraint("Horizontal", 2, 2, 11, 2))
sketch9.addConstraint(Sketcher.Constraint("Equal", 4, 10))
sketch9.addConstraint(Sketcher.Constraint("Equal", 2, 12))
sketch9.addConstraint(Sketcher.Constraint("Equal", 6, 8))
sketch9.addConstraint(Sketcher.Constraint("DistanceX", 0, 2, 0, 1, Q("8 mm")))
sketch9.addConstraint(Sketcher.Constraint("DistanceX", 4, 2, 4, 1, Q("3 mm")))
sketch9.addConstraint(Sketcher.Constraint("DistanceX", 7, 1, 7, 2, Q("10 mm")))
sketch9.addConstraint(Sketcher.Constraint("DistanceX", 2, 2, 2, 1, Q("2.7 mm")))
sketch9.addConstraint(Sketcher.Constraint("DistanceY", 1, 2, 1, 1, Q("4.5 mm")))
sketch9.addConstraint(Sketcher.Constraint("DistanceY", 3, 1, 3, 2, Q("1.8 mm")))
sketch9.addConstraint(Sketcher.Constraint("DistanceY", 5, 2, 5, 1, Q("4.55 mm")))
sketch9.addConstraint(Sketcher.Constraint("DistanceY", 6, 2, 5, 2, Q("4.99 mm")))
sketch9.addConstraint(Sketcher.Constraint("DistanceX", -1, 1, 0, 2, Q("31.035759 mm")))
sketch9.addConstraint(Sketcher.Constraint("DistanceY", 0, 2, -1, 1, Q("20.704961 mm")))
sketch9.setExpression("Constraints[32]", "Params.sketch9_width")
sketch9.setExpression("Constraints[33]", "Params.sketch9_width2")
sketch9.setExpression("Constraints[34]", "Params.sketch9_width3")
sketch9.setExpression("Constraints[35]", "Params.sketch9_width4")
sketch9.setExpression("Constraints[36]", "Params.sketch9_height")
pocket8 = doc.addObject("PartDesign::Pocket", "Pocket007")
body.addObject(pocket8)
pocket8.Profile = sketch9
pocket8.Type = "UpToFirst"

sketch10 = doc.addObject("Sketcher::SketchObject", "Sketch009")
body.addObject(sketch10)
sketch10.AttachmentSupport = (doc.YZ_Plane, [""])
sketch10.MapMode = "FlatFace"
sketch10.AttachmentOffset = App.Placement(V(0, 0, 100), App.Rotation())
sketch10.addGeometry(Part.LineSegment(V(31.035759, -56.204961, 0), V(31.035759, -60.704961, 0)), False)
sketch10.addGeometry(Part.LineSegment(V(31.035759, -60.704961, 0), V(39.035759, -60.704961, 0)), False)
sketch10.addGeometry(Part.LineSegment(V(39.035759, -60.704961, 0), V(39.035759, -56.204961, 0)), False)
sketch10.addGeometry(Part.LineSegment(V(39.035759, -56.204961, 0), V(41.735759, -56.204961, 0)), False)
sketch10.addGeometry(Part.LineSegment(V(41.735759, -56.204961, 0), V(41.735759, -58.004961, 0)), False)
sketch10.addGeometry(Part.LineSegment(V(41.735759, -58.004961, 0), V(44.735759, -58.004961, 0)), False)
sketch10.addGeometry(Part.LineSegment(V(44.735759, -58.004961, 0), V(44.735759, -53.454961, 0)), False)
sketch10.addGeometry(Part.LineSegment(V(44.735759, -53.454961, 0), V(40.035759, -48.464961, 0)), False)
sketch10.addGeometry(Part.LineSegment(V(40.035759, -48.464961, 0), V(30.035759, -48.464961, 0)), False)
sketch10.addGeometry(Part.LineSegment(V(30.035759, -48.464961, 0), V(25.335759, -53.454961, 0)), False)
sketch10.addGeometry(Part.LineSegment(V(25.335759, -53.454961, 0), V(25.335759, -58.004961, 0)), False)
sketch10.addGeometry(Part.LineSegment(V(25.335759, -58.004961, 0), V(28.335759, -58.004961, 0)), False)
sketch10.addGeometry(Part.LineSegment(V(28.335759, -58.004961, 0), V(28.335759, -56.204961, 0)), False)
sketch10.addGeometry(Part.LineSegment(V(28.335759, -56.204961, 0), V(31.035759, -56.204961, 0)), False)
sketch10.addConstraint(Sketcher.Constraint("Coincident", 0, 2, 1, 1))
sketch10.addConstraint(Sketcher.Constraint("Coincident", 1, 2, 2, 1))
sketch10.addConstraint(Sketcher.Constraint("Coincident", 2, 2, 3, 1))
sketch10.addConstraint(Sketcher.Constraint("Coincident", 3, 2, 4, 1))
sketch10.addConstraint(Sketcher.Constraint("Coincident", 4, 2, 5, 1))
sketch10.addConstraint(Sketcher.Constraint("Coincident", 5, 2, 6, 1))
sketch10.addConstraint(Sketcher.Constraint("Coincident", 6, 2, 7, 1))
sketch10.addConstraint(Sketcher.Constraint("Coincident", 7, 2, 8, 1))
sketch10.addConstraint(Sketcher.Constraint("Coincident", 8, 2, 9, 1))
sketch10.addConstraint(Sketcher.Constraint("Coincident", 9, 2, 10, 1))
sketch10.addConstraint(Sketcher.Constraint("Coincident", 10, 2, 11, 1))
sketch10.addConstraint(Sketcher.Constraint("Coincident", 11, 2, 12, 1))
sketch10.addConstraint(Sketcher.Constraint("Coincident", 12, 2, 13, 1))
sketch10.addConstraint(Sketcher.Constraint("Coincident", 13, 2, 0, 1))
sketch10.addConstraint(Sketcher.Constraint("Vertical", 0))
sketch10.addConstraint(Sketcher.Constraint("Horizontal", 1))
sketch10.addConstraint(Sketcher.Constraint("Vertical", 2))
sketch10.addConstraint(Sketcher.Constraint("Horizontal", 3))
sketch10.addConstraint(Sketcher.Constraint("Vertical", 4))
sketch10.addConstraint(Sketcher.Constraint("Horizontal", 5))
sketch10.addConstraint(Sketcher.Constraint("Vertical", 6))
sketch10.addConstraint(Sketcher.Constraint("Horizontal", 8))
sketch10.addConstraint(Sketcher.Constraint("Vertical", 10))
sketch10.addConstraint(Sketcher.Constraint("Horizontal", 11))
sketch10.addConstraint(Sketcher.Constraint("Vertical", 12))
sketch10.addConstraint(Sketcher.Constraint("Horizontal", 13))
sketch10.addConstraint(Sketcher.Constraint("Horizontal", 6, 2, 9, 2))
sketch10.addConstraint(Sketcher.Constraint("Horizontal", 5, 2, 10, 2))
sketch10.addConstraint(Sketcher.Constraint("Horizontal", 3, 2, 12, 2))
sketch10.addConstraint(Sketcher.Constraint("Equal", 5, 11))
sketch10.addConstraint(Sketcher.Constraint("Equal", 3, 13))
sketch10.addConstraint(Sketcher.Constraint("Equal", 7, 9))
sketch10.addConstraint(Sketcher.Constraint("DistanceX", 1, 1, 1, 2, Q("8 mm")))
sketch10.addConstraint(Sketcher.Constraint("DistanceX", 5, 1, 5, 2, Q("3 mm")))
sketch10.addConstraint(Sketcher.Constraint("DistanceX", 8, 2, 8, 1, Q("10 mm")))
sketch10.addConstraint(Sketcher.Constraint("DistanceX", 3, 1, 3, 2, Q("2.7 mm")))
sketch10.addConstraint(Sketcher.Constraint("DistanceY", 0, 2, 0, 1, Q("4.5 mm")))
sketch10.addConstraint(Sketcher.Constraint("DistanceY", 4, 2, 4, 1, Q("1.8 mm")))
sketch10.addConstraint(Sketcher.Constraint("DistanceY", 6, 1, 6, 2, Q("4.55 mm")))
sketch10.addConstraint(Sketcher.Constraint("DistanceY", 6, 2, 7, 2, Q("4.99 mm")))
sketch10.addConstraint(Sketcher.Constraint("DistanceX", -1, 1, 0, 2, Q("31.035759 mm")))
sketch10.addConstraint(Sketcher.Constraint("DistanceY", 0, 2, -1, 1, Q("60.704961 mm")))
sketch10.setExpression("Constraints[32]", "Params.sketch10_width")
sketch10.setExpression("Constraints[33]", "Params.sketch10_width2")
sketch10.setExpression("Constraints[34]", "Params.sketch10_width3")
sketch10.setExpression("Constraints[35]", "Params.sketch10_width4")
sketch10.setExpression("Constraints[36]", "Params.sketch10_height")
pocket9 = doc.addObject("PartDesign::Pocket", "Pocket008")
body.addObject(pocket9)
pocket9.Profile = sketch10
pocket9.Type = "UpToFirst"
doc.recompute()

fillet = doc.addObject("PartDesign::Fillet", "Fillet")
body.addObject(fillet)
fillet.Base = (pocket9, edges_at(pocket9, [
    (50, 55.036, -20.705),
    (50, 55.036, -60.705),
    (50, 15.036, -60.705),
    (50, 15.036, -20.705),
]))
fillet.setExpression("Radius", "Params.fillet_radius")

sketch11 = doc.addObject("Sketcher::SketchObject", "Sketch010")
body.addObject(sketch11)
sketch11.AttachmentSupport = (doc.XZ_Plane, [""])
sketch11.MapMode = "FlatFace"
sketch11.AttachmentOffset = App.Placement(V(0, 0, -42.795759), App.Rotation())
sketch11.addGeometry(Part.Circle(V(50, -40.704961, 0), V(0, 0, 1), 1.236693), False)
sketch11.addConstraint(Sketcher.Constraint("DistanceX", -1, 1, 0, 3, Q("50 mm")))
sketch11.addConstraint(Sketcher.Constraint("Diameter", 0, Q("2.473387 mm")))
sketch11.addConstraint(Sketcher.Constraint("DistanceY", 0, 3, -1, 1, Q("40.704961 mm")))
pocket10 = doc.addObject("PartDesign::Pocket", "Pocket009")
body.addObject(pocket10)
pocket10.Profile = sketch11
pocket10.setExpression("Length", "Params.pocket10_length")
pocket10.Reversed = True

doc.recompute()
